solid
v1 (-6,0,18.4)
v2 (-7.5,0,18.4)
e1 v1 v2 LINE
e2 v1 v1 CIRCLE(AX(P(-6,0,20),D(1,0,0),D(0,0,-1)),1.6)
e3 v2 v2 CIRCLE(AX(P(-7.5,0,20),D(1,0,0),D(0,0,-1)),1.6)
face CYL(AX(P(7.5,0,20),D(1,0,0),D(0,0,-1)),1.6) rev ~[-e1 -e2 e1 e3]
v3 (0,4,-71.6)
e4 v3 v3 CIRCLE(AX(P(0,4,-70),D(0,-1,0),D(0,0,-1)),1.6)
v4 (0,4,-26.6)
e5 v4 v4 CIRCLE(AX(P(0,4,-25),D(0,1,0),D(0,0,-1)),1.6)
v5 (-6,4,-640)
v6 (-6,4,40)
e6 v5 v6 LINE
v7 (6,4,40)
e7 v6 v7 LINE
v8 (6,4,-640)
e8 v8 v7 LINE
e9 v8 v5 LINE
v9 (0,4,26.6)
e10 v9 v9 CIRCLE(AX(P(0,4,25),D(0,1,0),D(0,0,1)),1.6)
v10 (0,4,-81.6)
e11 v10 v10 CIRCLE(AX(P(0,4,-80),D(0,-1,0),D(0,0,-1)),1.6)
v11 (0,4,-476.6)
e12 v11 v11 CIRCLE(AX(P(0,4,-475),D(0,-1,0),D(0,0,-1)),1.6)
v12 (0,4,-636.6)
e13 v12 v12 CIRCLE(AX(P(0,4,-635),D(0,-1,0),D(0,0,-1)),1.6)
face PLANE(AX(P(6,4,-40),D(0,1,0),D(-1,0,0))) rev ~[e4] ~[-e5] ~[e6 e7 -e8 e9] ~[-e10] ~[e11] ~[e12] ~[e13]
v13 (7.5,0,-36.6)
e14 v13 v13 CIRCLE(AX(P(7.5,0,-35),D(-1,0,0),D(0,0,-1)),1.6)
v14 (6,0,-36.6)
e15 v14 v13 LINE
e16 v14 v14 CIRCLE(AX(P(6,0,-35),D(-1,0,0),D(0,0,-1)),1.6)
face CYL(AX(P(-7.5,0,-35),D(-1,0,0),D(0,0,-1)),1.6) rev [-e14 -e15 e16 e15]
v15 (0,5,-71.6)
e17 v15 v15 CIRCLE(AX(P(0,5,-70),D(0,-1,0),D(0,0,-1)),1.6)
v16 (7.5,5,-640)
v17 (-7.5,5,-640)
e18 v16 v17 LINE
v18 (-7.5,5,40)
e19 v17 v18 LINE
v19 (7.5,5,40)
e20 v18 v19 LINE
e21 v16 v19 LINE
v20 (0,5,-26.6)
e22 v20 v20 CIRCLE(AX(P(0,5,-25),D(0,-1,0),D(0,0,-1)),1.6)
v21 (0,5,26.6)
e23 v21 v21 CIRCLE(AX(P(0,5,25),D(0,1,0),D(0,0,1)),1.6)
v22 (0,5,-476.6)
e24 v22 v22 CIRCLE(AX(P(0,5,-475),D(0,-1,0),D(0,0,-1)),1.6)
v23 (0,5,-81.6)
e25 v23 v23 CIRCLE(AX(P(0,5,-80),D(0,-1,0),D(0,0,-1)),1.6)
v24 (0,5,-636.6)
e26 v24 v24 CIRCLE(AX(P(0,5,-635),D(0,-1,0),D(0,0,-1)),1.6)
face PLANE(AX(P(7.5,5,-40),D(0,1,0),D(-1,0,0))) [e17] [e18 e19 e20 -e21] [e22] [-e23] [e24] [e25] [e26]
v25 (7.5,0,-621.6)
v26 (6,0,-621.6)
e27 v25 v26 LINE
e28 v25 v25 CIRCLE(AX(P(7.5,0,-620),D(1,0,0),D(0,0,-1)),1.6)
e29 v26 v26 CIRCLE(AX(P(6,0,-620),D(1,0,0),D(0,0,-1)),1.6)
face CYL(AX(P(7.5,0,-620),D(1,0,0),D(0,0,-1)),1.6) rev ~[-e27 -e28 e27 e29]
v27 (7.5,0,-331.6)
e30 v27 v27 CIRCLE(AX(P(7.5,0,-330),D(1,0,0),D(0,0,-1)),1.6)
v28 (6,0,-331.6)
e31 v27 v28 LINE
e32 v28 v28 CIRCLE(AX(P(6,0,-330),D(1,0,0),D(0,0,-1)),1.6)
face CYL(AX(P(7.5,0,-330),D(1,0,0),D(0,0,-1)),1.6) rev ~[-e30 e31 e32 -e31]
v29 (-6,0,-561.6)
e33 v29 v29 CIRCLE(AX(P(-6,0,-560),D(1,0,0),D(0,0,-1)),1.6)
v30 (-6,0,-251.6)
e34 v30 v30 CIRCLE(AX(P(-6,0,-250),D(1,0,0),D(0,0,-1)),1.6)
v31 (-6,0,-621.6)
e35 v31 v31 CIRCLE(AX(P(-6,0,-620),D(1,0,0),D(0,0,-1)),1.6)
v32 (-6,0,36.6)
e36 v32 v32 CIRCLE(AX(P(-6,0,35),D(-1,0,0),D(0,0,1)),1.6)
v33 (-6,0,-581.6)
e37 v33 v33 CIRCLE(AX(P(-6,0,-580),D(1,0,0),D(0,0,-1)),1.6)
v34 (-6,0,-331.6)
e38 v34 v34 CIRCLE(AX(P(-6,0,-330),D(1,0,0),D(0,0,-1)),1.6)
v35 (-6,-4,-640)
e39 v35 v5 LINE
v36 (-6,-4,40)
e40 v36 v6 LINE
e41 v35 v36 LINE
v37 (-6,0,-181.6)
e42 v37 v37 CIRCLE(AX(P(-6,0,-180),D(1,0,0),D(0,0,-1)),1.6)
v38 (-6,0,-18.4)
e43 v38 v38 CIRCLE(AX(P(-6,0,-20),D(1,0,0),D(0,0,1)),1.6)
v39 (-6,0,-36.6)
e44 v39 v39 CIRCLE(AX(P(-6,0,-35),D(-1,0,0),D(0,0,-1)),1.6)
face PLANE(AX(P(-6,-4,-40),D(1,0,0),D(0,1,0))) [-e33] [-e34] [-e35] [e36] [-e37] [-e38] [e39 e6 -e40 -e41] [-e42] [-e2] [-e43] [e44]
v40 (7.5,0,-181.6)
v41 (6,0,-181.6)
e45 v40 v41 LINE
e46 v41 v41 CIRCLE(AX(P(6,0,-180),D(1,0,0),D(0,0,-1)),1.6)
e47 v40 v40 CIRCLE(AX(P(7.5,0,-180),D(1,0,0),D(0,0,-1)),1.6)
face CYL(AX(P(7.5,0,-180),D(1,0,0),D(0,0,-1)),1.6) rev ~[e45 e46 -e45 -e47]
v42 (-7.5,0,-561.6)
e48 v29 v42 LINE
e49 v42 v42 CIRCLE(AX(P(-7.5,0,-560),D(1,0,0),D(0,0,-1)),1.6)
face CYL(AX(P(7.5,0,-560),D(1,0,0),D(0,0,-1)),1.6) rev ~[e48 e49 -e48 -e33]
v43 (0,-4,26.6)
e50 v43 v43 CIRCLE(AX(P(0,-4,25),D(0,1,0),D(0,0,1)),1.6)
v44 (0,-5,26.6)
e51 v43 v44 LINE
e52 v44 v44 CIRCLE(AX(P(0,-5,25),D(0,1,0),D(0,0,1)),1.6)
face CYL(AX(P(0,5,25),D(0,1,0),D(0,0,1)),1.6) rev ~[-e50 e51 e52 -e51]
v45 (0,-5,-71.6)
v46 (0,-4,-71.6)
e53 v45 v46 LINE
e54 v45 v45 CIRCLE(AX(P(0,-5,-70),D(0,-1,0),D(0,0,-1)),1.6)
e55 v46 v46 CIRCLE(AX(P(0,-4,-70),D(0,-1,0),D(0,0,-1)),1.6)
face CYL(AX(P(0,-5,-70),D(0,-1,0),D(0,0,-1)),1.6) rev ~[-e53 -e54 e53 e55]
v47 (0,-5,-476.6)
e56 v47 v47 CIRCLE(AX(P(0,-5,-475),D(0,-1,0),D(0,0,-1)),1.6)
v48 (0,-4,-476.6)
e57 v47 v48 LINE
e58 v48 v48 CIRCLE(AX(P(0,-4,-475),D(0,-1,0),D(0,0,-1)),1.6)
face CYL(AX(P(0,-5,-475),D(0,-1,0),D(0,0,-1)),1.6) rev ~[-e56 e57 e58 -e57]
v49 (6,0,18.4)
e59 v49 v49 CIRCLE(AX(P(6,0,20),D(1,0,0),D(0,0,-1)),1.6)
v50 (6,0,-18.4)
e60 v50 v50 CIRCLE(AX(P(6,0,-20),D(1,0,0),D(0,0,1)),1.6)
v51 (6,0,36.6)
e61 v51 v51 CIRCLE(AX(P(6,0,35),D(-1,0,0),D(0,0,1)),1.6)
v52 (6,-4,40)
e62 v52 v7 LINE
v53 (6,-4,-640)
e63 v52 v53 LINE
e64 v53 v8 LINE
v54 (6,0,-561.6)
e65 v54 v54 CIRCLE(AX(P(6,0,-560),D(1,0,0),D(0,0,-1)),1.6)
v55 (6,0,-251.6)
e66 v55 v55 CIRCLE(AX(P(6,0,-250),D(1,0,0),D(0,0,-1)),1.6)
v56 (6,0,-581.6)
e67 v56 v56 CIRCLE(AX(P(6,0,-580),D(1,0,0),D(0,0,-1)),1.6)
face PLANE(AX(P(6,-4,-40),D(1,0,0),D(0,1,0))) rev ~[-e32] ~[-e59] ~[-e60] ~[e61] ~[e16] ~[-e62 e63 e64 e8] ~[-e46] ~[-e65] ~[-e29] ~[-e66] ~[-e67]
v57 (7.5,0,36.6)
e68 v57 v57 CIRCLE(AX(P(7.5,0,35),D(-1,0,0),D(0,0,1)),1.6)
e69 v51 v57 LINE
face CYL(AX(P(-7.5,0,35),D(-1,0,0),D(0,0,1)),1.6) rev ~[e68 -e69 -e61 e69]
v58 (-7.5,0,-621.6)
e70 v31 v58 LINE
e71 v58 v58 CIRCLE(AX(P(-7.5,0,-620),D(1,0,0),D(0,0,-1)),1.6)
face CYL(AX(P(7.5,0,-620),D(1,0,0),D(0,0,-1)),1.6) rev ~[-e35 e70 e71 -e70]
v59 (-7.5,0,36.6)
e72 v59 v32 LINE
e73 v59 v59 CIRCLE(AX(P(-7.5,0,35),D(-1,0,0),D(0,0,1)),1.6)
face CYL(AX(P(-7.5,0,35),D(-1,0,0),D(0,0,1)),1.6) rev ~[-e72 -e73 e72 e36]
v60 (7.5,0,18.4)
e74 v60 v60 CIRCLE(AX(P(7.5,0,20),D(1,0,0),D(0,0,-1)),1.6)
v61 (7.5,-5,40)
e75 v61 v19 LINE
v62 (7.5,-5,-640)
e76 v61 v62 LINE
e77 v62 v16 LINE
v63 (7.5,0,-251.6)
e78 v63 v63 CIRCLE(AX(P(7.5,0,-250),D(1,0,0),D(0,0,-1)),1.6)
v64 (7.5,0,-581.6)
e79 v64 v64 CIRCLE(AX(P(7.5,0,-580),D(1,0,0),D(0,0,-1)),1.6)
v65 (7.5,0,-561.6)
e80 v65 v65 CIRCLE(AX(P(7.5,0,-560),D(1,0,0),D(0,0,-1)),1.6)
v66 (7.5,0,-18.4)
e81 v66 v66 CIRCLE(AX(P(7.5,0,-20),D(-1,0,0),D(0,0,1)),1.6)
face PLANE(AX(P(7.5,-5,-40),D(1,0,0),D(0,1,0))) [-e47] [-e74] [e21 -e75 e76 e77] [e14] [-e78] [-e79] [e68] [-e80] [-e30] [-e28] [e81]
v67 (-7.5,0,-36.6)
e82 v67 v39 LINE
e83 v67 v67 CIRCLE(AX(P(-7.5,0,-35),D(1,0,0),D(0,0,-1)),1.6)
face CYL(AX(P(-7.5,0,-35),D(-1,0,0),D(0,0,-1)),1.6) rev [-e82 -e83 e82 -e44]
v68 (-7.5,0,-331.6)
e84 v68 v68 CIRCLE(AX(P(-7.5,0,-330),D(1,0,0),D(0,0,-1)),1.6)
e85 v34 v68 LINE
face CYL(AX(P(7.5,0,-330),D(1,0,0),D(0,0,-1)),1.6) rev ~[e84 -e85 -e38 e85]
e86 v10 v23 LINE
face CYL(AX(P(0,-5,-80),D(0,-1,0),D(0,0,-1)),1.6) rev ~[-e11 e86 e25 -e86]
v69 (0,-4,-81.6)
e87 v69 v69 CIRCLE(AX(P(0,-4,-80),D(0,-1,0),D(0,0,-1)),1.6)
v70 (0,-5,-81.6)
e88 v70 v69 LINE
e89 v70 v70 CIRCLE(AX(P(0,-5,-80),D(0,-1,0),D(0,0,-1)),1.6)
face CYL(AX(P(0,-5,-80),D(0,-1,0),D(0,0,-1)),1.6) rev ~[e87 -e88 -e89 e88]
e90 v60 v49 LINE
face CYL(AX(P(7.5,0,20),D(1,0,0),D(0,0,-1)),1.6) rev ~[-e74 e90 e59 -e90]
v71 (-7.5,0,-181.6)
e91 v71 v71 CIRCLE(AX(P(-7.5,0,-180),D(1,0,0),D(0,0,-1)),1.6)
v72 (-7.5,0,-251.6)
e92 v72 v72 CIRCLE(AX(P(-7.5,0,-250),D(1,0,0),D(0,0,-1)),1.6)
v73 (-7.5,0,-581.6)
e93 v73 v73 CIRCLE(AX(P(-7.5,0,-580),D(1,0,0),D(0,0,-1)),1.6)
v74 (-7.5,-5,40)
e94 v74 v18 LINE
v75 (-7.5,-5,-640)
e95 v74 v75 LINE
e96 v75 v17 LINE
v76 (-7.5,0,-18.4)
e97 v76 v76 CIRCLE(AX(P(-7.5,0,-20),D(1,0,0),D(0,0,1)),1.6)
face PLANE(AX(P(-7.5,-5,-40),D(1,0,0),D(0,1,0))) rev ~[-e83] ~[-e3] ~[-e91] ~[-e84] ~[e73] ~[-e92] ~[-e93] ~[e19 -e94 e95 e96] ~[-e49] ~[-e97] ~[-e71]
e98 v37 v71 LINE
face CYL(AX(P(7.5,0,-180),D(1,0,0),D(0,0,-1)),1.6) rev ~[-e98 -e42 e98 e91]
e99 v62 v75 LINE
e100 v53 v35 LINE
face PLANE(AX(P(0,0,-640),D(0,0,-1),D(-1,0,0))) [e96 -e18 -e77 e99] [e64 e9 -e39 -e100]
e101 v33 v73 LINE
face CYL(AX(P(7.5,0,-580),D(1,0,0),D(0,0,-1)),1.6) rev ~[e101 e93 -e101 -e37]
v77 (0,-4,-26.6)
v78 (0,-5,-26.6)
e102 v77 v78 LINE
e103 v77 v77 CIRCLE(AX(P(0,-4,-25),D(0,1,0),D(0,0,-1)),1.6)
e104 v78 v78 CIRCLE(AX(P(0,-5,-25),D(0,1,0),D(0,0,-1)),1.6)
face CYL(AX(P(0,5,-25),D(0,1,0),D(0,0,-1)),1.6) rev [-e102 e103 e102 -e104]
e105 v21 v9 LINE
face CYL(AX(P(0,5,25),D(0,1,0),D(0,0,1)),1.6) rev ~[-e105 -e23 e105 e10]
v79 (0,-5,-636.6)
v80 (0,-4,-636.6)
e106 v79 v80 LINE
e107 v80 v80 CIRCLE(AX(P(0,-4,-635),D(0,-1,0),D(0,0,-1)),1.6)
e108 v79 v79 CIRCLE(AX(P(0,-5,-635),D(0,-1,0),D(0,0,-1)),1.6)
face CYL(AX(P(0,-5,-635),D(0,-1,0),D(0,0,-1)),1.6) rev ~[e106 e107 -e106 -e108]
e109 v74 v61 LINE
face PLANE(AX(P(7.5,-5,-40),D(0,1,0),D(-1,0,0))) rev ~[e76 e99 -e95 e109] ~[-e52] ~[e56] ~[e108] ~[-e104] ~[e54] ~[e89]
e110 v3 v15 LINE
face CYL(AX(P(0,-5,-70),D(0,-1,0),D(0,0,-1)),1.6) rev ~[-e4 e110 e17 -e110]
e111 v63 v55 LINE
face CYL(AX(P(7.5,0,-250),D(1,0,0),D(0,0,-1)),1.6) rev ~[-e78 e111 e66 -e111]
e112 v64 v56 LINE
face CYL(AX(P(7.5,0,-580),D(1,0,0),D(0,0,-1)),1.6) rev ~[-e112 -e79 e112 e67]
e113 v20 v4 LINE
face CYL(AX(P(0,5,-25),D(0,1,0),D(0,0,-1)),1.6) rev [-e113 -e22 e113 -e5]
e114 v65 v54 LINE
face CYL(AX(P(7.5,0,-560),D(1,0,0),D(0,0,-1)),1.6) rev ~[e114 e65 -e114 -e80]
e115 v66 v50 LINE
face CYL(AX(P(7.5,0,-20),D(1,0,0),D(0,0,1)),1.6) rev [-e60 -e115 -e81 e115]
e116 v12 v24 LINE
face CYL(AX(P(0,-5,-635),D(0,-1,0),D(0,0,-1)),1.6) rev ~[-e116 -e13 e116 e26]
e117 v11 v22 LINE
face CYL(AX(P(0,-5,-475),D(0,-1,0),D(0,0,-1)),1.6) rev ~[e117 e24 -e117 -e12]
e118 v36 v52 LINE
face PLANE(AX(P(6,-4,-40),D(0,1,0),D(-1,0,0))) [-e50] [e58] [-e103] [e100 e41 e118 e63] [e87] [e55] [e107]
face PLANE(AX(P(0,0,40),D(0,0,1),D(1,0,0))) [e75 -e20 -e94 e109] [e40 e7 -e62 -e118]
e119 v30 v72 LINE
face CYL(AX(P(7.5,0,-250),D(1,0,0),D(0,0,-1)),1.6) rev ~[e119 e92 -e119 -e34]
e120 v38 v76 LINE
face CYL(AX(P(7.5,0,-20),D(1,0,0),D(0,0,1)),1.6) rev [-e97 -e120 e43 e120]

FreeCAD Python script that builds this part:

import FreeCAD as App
import Part
import Sketcher

V = App.Vector

doc = App.newDocument("Part")
body = doc.addObject("PartDesign::Body", "Body")

# Sketch on XY plane
sketch1 = body.newObject("Sketcher::SketchObject", "Sketch")
sketch1.AttachmentSupport = (doc.getObject("XY_Plane"), [""])
sketch1.MapMode = "FlatFace"
sketch1.addGeometry([
    Part.LineSegment(V(-8, 5, 0), V(-8, -5, 0)),  # 0
    Part.LineSegment(V(-8, -5, 0), V(8, -5, 0)),  # 1
    Part.LineSegment(V(8, -5, 0), V(8, 5, 0)),  # 2
    Part.LineSegment(V(8, 5, 0), V(-8, 5, 0)),  # 3
    Part.LineSegment(V(6, -4, 0), V(-6, -4, 0)),  # 4
    Part.LineSegment(V(-6, -4, 0), V(-6, 4, 0)),  # 5
    Part.LineSegment(V(-6, 4, 0), V(6, 4, 0)),  # 6
    Part.LineSegment(V(6, 4, 0), V(6, -4, 0)),  # 7
], False)
sketch1.addConstraint([
    Sketcher.Constraint("Coincident", 0, 2, 1, 1),
    Sketcher.Constraint("Coincident", 1, 2, 2, 1),
    Sketcher.Constraint("Coincident", 2, 2, 3, 1),
    Sketcher.Constraint("Coincident", 3, 2, 0, 1),
    Sketcher.Constraint("Coincident", 4, 2, 5, 1),
    Sketcher.Constraint("Coincident", 5, 2, 6, 1),
    Sketcher.Constraint("Coincident", 6, 2, 7, 1),
    Sketcher.Constraint("Coincident", 7, 2, 4, 1),
    Sketcher.Constraint("Vertical", 0),
    Sketcher.Constraint("Horizontal", 1),
    Sketcher.Constraint("Vertical", 2),
    Sketcher.Constraint("Horizontal", 3),
    Sketcher.Constraint("Horizontal", 4),
    Sketcher.Constraint("Vertical", 5),
    Sketcher.Constraint("Horizontal", 6),
    Sketcher.Constraint("Vertical", 7),
    Sketcher.Constraint("Symmetric", 0, 2, 2, 2, -1, 1),
    Sketcher.Constraint("Symmetric", 4, 2, 6, 2, -1, 1),
    Sketcher.Constraint("DistanceX", 1, 1, 1, 2, 15.0),
    Sketcher.Constraint("DistanceX", 4, 2, 4, 1, 12.0),
    Sketcher.Constraint("DistanceY", 0, 2, 0, 1, 10.0),
    Sketcher.Constraint("DistanceY", 5, 1, 5, 2, 8.0),
])
pad1 = body.newObject("PartDesign::Pad", "Pad")
pad1.Profile = sketch1
pad1.Length = 40

# Sketch on YZ plane
sketch2 = body.newObject("Sketcher::SketchObject", "Sketch001")
sketch2.AttachmentSupport = (doc.getObject("YZ_Plane"), [""])
sketch2.MapMode = "FlatFace"
sketch2.AttachmentOffset = App.Placement(V(0, 0, 7.5), App.Rotation())
sketch2.addGeometry(Part.Circle(V(0, 20, 0), V(0, 0, 1), 1.6), False)
sketch2.addConstraint([
    Sketcher.Constraint("PointOnObject", 0, 3, -2),
    Sketcher.Constraint("Diameter", 0, 3.2),
    Sketcher.Constraint("DistanceY", -1, 1, 0, 3, 20.0),
])
pocket1 = body.newObject("PartDesign::Pocket", "Pocket")
pocket1.Profile = sketch2
pocket1.Type = "ThroughAll"

# Sketch on YZ plane
sketch3 = body.newObject("Sketcher::SketchObject", "Sketch002")
sketch3.AttachmentSupport = (doc.getObject("YZ_Plane"), [""])
sketch3.MapMode = "FlatFace"
sketch3.AttachmentOffset = App.Placement(V(0, 0, -7.5), App.Rotation())
sketch3.addGeometry(Part.Circle(V(0, 35, 0), V(0, 0, 1), 1.6), False)
sketch3.addConstraint([
    Sketcher.Constraint("PointOnObject", 0, 3, -2),
    Sketcher.Constraint("Diameter", 0, 3.2),
    Sketcher.Constraint("DistanceY", -1, 1, 0, 3, 35.0),
])
pocket2 = body.newObject("PartDesign::Pocket", "Pocket001")
pocket2.Profile = sketch3
pocket2.Type = "ThroughAll"
pocket2.Reversed = True

# Sketch on XZ plane
sketch4 = body.newObject("Sketcher::SketchObject", "Sketch003")
sketch4.AttachmentSupport = (doc.getObject("XZ_Plane"), [""])
sketch4.MapMode = "FlatFace"
sketch4.AttachmentOffset = App.Placement(V(0, 0, -5), App.Rotation())
sketch4.addGeometry(Part.Circle(V(0, 25, 0), V(0, 0, 1), 1.6), False)
sketch4.addConstraint([
    Sketcher.Constraint("PointOnObject", 0, 3, -2),
    Sketcher.Constraint("Diameter", 0, 3.2),
    Sketcher.Constraint("DistanceY", -1, 1, 0, 3, 25.0),
])
pocket3 = body.newObject("PartDesign::Pocket", "Pocket002")
pocket3.Profile = sketch4
pocket3.Type = "ThroughAll"
pocket3.Reversed = True
doc.recompute()

mirrored = body.newObject("PartDesign::Mirrored", "Mirrored")
mirrored.Originals = [pad1, pocket1, pocket2, pocket3]
mirrored.MirrorPlane = (doc.getObject("XY_Plane"), [""])
body.Tip = mirrored

# Sketch on XY plane
sketch5 = body.newObject("Sketcher::SketchObject", "Sketch004")
sketch5.AttachmentSupport = (doc.getObject("XY_Plane"), [""])
sketch5.MapMode = "FlatFace"
sketch5.AttachmentOffset = App.Placement(V(0, 0, -40), App.Rotation())
sketch5.addGeometry([
    Part.LineSegment(V(8, 5, 0), V(8, -5, 0)),  # 0
    Part.LineSegment(V(8, -5, 0), V(-8, -5, 0)),  # 1
    Part.LineSegment(V(-8, -5, 0), V(-8, 5, 0)),  # 2
    Part.LineSegment(V(-8, 5, 0), V(8, 5, 0)),  # 3
    Part.LineSegment(V(-6, -4, 0), V(6, -4, 0)),  # 4
    Part.LineSegment(V(6, -4, 0), V(6, 4, 0)),  # 5
    Part.LineSegment(V(6, 4, 0), V(-6, 4, 0)),  # 6
    Part.LineSegment(V(-6, 4, 0), V(-6, -4, 0)),  # 7
], False)
sketch5.addConstraint([
    Sketcher.Constraint("Coincident", 0, 2, 1, 1),
    Sketcher.Constraint("Coincident", 1, 2, 2, 1),
    Sketcher.Constraint("Coincident", 2, 2, 3, 1),
    Sketcher.Constraint("Coincident", 3, 2, 0, 1),
    Sketcher.Constraint("Coincident", 4, 2, 5, 1),
    Sketcher.Constraint("Coincident", 5, 2, 6, 1),
    Sketcher.Constraint("Coincident", 6, 2, 7, 1),
    Sketcher.Constraint("Coincident", 7, 2, 4, 1),
    Sketcher.Constraint("Vertical", 0),
    Sketcher.Constraint("Horizontal", 1),
    Sketcher.Constraint("Vertical", 2),
    Sketcher.Constraint("Horizontal", 3),
    Sketcher.Constraint("Horizontal", 4),
    Sketcher.Constraint("Vertical", 5),
    Sketcher.Constraint("Horizontal", 6),
    Sketcher.Constraint("Vertical", 7),
    Sketcher.Constraint("Symmetric", 0, 2, 2, 2, -1, 1),
    Sketcher.Constraint("Symmetric", 4, 2, 6, 2, -1, 1),
    Sketcher.Constraint("DistanceX", 1, 2, 1, 1, 15.0),
    Sketcher.Constraint("DistanceX", 4, 1, 4, 2, 12.0),
    Sketcher.Constraint("DistanceY", 0, 2, 0, 1, 10.0),
    Sketcher.Constraint("DistanceY", 5, 1, 5, 2, 8.0),
])
pad2 = body.newObject("PartDesign::Pad", "Pad001")
pad2.Profile = sketch5
pad2.Length = 600
pad2.Reversed = True

# Sketch on XZ plane
sketch6 = body.newObject("Sketcher::SketchObject", "Sketch005")
sketch6.AttachmentSupport = (doc.getObject("XZ_Plane"), [""])
sketch6.MapMode = "FlatFace"
sketch6.AttachmentOffset = App.Placement(V(0, 0, 5), App.Rotation())
sketch6.addGeometry([
    Part.Circle(V(0, -635, 0), V(0, 0, 1), 1.6),
    Part.Circle(V(0, -80, 0), V(0, 0, 1), 1.6),
    Part.Circle(V(0, -70, 0), V(0, 0, 1), 1.6),
    Part.Circle(V(0, -475, 0), V(0, 0, 1), 1.6),
], False)
sketch6.addConstraint([
    Sketcher.Constraint("Equal", 0, 1),
    Sketcher.Constraint("Equal", 1, 2),
    Sketcher.Constraint("Equal", 2, 3),
    Sketcher.Constraint("PointOnObject", 0, 3, -2),
    Sketcher.Constraint("PointOnObject", 1, 3, -2),
    Sketcher.Constraint("PointOnObject", 2, 3, -2),
    Sketcher.Constraint("PointOnObject", 3, 3, -2),
    Sketcher.Constraint("Diameter", 0, 3.2),
    Sketcher.Constraint("DistanceY", 0, 3, -1, 1, 635.0),
    Sketcher.Constraint("DistanceY", 1, 3, -1, 1, 80.0),
    Sketcher.Constraint("DistanceY", 2, 3, -1, 1, 70.0),
    Sketcher.Constraint("DistanceY", 3, 3, -1, 1, 475.0),
])
pocket4 = body.newObject("PartDesign::Pocket", "Pocket003")
pocket4.Profile = sketch6
pocket4.Type = "ThroughAll"

# Sketch on YZ plane
sketch7 = body.newObject("Sketcher::SketchObject", "Sketch006")
sketch7.AttachmentSupport = (doc.getObject("YZ_Plane"), [""])
sketch7.MapMode = "FlatFace"
sketch7.AttachmentOffset = App.Placement(V(0, 0, 7.5), App.Rotation())
sketch7.addGeometry([
    Part.Circle(V(0, -330, 0), V(0, 0, 1), 1.6),  # 0
    Part.Circle(V(0, -580, 0), V(0, 0, 1), 1.6),  # 1
    Part.Circle(V(0, -180, 0), V(0, 0, 1), 1.6),  # 2
    Part.Circle(V(0, -250, 0), V(0, 0, 1), 1.6),  # 3
    Part.Circle(V(0, -560, 0), V(0, 0, 1), 1.6),  # 4
    Part.Circle(V(0, -620, 0), V(0, 0, 1), 1.6),  # 5
], False)
sketch7.addConstraint([
    Sketcher.Constraint("Equal", 0, 1),
    Sketcher.Constraint("Equal", 1, 2),
    Sketcher.Constraint("Equal", 2, 3),
    Sketcher.Constraint("Equal", 3, 4),
    Sketcher.Constraint("Equal", 4, 5),
    Sketcher.Constraint("PointOnObject", 0, 3, -2),
    Sketcher.Constraint("PointOnObject", 1, 3, -2),
    Sketcher.Constraint("PointOnObject", 2, 3, -2),
    Sketcher.Constraint("PointOnObject", 3, 3, -2),
    Sketcher.Constraint("PointOnObject", 4, 3, -2),
    Sketcher.Constraint("PointOnObject", 5, 3, -2),
    Sketcher.Constraint("Diameter", 0, 3.2),
    Sketcher.Constraint("DistanceY", 0, 3, -1, 1, 330.0),
    Sketcher.Constraint("DistanceY", 1, 3, -1, 1, 580.0),
    Sketcher.Constraint("DistanceY", 2, 3, -1, 1, 180.0),
    Sketcher.Constraint("DistanceY", 3, 3, -1, 1, 250.0),
    Sketcher.Constraint("DistanceY", 4, 3, -1, 1, 560.0),
    Sketcher.Constraint("DistanceY", 5, 3, -1, 1, 620.0),
])
pocket5 = body.newObject("PartDesign::Pocket", "Pocket004")
pocket5.Profile = sketch7
pocket5.Type = "ThroughAll"

doc.recompute()
